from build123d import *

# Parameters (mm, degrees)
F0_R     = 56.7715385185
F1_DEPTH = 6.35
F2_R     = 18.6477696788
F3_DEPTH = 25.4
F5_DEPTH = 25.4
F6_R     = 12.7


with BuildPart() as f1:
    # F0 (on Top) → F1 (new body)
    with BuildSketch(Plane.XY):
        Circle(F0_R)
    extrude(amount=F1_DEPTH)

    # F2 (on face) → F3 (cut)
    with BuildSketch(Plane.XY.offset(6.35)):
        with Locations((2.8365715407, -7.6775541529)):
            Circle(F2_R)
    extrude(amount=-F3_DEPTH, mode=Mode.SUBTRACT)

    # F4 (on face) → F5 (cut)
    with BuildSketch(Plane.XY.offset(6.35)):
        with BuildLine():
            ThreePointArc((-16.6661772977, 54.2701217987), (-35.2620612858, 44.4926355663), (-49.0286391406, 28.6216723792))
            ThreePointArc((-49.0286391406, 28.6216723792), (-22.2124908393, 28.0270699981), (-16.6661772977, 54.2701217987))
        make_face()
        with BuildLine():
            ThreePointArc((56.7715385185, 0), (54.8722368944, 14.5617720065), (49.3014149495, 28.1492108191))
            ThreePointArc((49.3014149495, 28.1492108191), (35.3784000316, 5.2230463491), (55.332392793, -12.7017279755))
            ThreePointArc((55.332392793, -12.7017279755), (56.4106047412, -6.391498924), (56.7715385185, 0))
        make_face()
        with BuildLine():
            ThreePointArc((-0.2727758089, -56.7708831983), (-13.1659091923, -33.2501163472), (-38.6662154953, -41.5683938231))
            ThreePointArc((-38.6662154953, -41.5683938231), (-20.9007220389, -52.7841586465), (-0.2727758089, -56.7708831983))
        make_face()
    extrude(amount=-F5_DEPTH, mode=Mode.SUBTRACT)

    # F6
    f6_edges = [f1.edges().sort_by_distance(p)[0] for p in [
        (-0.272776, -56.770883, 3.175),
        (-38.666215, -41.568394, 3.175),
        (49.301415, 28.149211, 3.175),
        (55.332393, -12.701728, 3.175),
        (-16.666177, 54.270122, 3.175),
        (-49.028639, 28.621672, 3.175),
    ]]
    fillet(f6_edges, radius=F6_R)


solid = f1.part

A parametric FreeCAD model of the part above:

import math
import FreeCAD as App
import Part
import Sketcher

V = App.Vector
Q = App.Units.Quantity


def edges_at(feature, points):
    """Names of the edges that pass closest to the given points."""
    edges = feature.Shape.Edges
    near = lambda p: min(range(len(edges)), key=lambda i: edges[i].distToShape(Part.Vertex(*p))[0])
    return sorted({f"Edge{near(p) + 1}" for p in points})

doc = App.newDocument("Part")
body = doc.addObject("PartDesign::Body", "Body")

sketch1 = body.newObject("Sketcher::SketchObject", "Sketch")
sketch1.AttachmentSupport = (doc.getObject("XY_Plane"), [""])
sketch1.MapMode = "FlatFace"
sketch1.addGeometry(Part.Circle(V(0, 0, 0), V(0, 0, 1), 56.771539), False)
sketch1.addConstraint([
    Sketcher.Constraint("Coincident", 0, 3, -1, 1),
    Sketcher.Constraint("Diameter", 0, Q("4.4701999 in")),
])
pad1 = body.newObject("PartDesign::Pad", "Pad")
pad1.Profile = sketch1
pad1.Length = Q("0.25 in")

sketch2 = body.newObject("Sketcher::SketchObject", "Sketch001")
sketch2.AttachmentSupport = (doc.getObject("XY_Plane"), [""])
sketch2.MapMode = "FlatFace"
sketch2.AttachmentOffset = App.Placement(V(0, 0, 0.25 * 25.4), App.Rotation())
sketch2.addGeometry(Part.Circle(V(2.836572, -7.677554, 0), V(0, 0, 1), 18.64777), False)
sketch2.addConstraint([
    Sketcher.Constraint("Diameter", 0, Q("37.295539 mm")),
    Sketcher.Constraint("DistanceX", -1, 1, 0, 3, Q("2.836572 mm")),
    Sketcher.Constraint("DistanceY", 0, 3, -1, 1, Q("7.677554 mm")),
])
pocket1 = body.newObject("PartDesign::Pocket", "Pocket")
pocket1.Profile = sketch2
pocket1.Length = Q("1 in")

sketch3 = body.newObject("Sketcher::SketchObject", "Sketch002")
sketch3.AttachmentSupport = (doc.getObject("XY_Plane"), [""])
sketch3.MapMode = "FlatFace"
sketch3.AttachmentOffset = App.Placement(V(0, 0, 0.25 * 25.4), App.Rotation())
sketch3.addGeometry([
    Part.ArcOfCircle(Part.Circle(V(0, 0, 0), V(0, 0, 1), 56.771539), math.radians(107.071551), math.radians(149.724704)),
    Part.ArcOfCircle(Part.Circle(V(-35.262061, 44.492636, 0), V(0, 0, 1), 21.009668), math.radians(-130.938584), math.radians(27.73484)),
    Part.ArcOfCircle(Part.Circle(V(0, 0, 0), V(0, 0, 1), 56.771539), math.radians(0), math.radians(29.724704)),
    Part.ArcOfCircle(Part.Circle(V(56.162783, 8.291523, 0), V(0, 0, 1), 21.009668), math.radians(109.061416), math.radians(267.73484)),
    Part.ArcOfCircle(Part.Circle(V(0, 0, 0), V(0, 0, 1), 56.771539), math.radians(-12.928449), math.radians(0)),
    Part.ArcOfCircle(Part.Circle(V(-20.900722, -52.784159, 0), V(0, 0, 1), 21.009668), math.radians(-10.938584), math.radians(147.73484)),
    Part.ArcOfCircle(Part.Circle(V(0, 0, 0), V(0, 0, 1), 56.771539), math.radians(-132.928449), math.radians(-90.275296)),
], False)
sketch3.addConstraint([
    Sketcher.Constraint("Coincident", 0, 1, 1, 2),
    Sketcher.Constraint("Coincident", 1, 1, 0, 2),
    Sketcher.Constraint("Coincident", 2, 2, 3, 1),
    Sketcher.Constraint("Coincident", 3, 2, 4, 1),
    Sketcher.Constraint("Tangent", 4, 2, 2, 1),
    Sketcher.Constraint("Coincident", 5, 1, 6, 2),
    Sketcher.Constraint("Coincident", 6, 1, 5, 2),
    Sketcher.Constraint("Coincident", 0, 3, -1, 1),
    Sketcher.Constraint("Coincident", 2, 3, -1, 1),
    Sketcher.Constraint("Coincident", 6, 3, -1, 1),
    Sketcher.Constraint("Equal", 0, 2),
    Sketcher.Constraint("Equal", 1, 3),
    Sketcher.Constraint("Equal", 2, 4),
    Sketcher.Constraint("Equal", 3, 5),
    Sketcher.Constraint("Equal", 4, 6),
    Sketcher.Constraint("PointOnObject", 4, 2, -1),
    Sketcher.Constraint("Radius", 0, Q("2.2350999 in")),
    Sketcher.Constraint("Radius", 1, Q("21.009668 mm")),
    Sketcher.Constraint("DistanceX", 1, 3, -1, 1, Q("35.262061 mm")),
    Sketcher.Constraint("DistanceY", 5, 3, -1, 1, Q("52.784159 mm")),
    Sketcher.Constraint("DistanceY", -1, 1, 0, 1, Q("54.270122 mm")),
    Sketcher.Constraint("DistanceY", -1, 1, 2, 2, Q("28.149211 mm")),
    Sketcher.Constraint("DistanceX", 1, 3, 5, 3, Q("14.361339 mm")),
    Sketcher.Constraint("DistanceY", 5, 3, 3, 3, Q("61.075682 mm")),
])
pocket2 = body.newObject("PartDesign::Pocket", "Pocket001")
pocket2.Profile = sketch3
pocket2.Length = Q("1 in")
doc.recompute()

fillet = body.newObject("PartDesign::Fillet", "Fillet")
fillet.Base = (pocket2, edges_at(pocket2, [
    (-0.273, -56.771, 3.175),
    (-38.666, -41.568, 3.175),
    (49.301, 28.149, 3.175),
    (55.332, -12.702, 3.175),
    (-16.666, 54.27, 3.175),
    (-49.029, 28.622, 3.175),
]))
fillet.Radius = Q("0.5 in")

doc.recompute()
